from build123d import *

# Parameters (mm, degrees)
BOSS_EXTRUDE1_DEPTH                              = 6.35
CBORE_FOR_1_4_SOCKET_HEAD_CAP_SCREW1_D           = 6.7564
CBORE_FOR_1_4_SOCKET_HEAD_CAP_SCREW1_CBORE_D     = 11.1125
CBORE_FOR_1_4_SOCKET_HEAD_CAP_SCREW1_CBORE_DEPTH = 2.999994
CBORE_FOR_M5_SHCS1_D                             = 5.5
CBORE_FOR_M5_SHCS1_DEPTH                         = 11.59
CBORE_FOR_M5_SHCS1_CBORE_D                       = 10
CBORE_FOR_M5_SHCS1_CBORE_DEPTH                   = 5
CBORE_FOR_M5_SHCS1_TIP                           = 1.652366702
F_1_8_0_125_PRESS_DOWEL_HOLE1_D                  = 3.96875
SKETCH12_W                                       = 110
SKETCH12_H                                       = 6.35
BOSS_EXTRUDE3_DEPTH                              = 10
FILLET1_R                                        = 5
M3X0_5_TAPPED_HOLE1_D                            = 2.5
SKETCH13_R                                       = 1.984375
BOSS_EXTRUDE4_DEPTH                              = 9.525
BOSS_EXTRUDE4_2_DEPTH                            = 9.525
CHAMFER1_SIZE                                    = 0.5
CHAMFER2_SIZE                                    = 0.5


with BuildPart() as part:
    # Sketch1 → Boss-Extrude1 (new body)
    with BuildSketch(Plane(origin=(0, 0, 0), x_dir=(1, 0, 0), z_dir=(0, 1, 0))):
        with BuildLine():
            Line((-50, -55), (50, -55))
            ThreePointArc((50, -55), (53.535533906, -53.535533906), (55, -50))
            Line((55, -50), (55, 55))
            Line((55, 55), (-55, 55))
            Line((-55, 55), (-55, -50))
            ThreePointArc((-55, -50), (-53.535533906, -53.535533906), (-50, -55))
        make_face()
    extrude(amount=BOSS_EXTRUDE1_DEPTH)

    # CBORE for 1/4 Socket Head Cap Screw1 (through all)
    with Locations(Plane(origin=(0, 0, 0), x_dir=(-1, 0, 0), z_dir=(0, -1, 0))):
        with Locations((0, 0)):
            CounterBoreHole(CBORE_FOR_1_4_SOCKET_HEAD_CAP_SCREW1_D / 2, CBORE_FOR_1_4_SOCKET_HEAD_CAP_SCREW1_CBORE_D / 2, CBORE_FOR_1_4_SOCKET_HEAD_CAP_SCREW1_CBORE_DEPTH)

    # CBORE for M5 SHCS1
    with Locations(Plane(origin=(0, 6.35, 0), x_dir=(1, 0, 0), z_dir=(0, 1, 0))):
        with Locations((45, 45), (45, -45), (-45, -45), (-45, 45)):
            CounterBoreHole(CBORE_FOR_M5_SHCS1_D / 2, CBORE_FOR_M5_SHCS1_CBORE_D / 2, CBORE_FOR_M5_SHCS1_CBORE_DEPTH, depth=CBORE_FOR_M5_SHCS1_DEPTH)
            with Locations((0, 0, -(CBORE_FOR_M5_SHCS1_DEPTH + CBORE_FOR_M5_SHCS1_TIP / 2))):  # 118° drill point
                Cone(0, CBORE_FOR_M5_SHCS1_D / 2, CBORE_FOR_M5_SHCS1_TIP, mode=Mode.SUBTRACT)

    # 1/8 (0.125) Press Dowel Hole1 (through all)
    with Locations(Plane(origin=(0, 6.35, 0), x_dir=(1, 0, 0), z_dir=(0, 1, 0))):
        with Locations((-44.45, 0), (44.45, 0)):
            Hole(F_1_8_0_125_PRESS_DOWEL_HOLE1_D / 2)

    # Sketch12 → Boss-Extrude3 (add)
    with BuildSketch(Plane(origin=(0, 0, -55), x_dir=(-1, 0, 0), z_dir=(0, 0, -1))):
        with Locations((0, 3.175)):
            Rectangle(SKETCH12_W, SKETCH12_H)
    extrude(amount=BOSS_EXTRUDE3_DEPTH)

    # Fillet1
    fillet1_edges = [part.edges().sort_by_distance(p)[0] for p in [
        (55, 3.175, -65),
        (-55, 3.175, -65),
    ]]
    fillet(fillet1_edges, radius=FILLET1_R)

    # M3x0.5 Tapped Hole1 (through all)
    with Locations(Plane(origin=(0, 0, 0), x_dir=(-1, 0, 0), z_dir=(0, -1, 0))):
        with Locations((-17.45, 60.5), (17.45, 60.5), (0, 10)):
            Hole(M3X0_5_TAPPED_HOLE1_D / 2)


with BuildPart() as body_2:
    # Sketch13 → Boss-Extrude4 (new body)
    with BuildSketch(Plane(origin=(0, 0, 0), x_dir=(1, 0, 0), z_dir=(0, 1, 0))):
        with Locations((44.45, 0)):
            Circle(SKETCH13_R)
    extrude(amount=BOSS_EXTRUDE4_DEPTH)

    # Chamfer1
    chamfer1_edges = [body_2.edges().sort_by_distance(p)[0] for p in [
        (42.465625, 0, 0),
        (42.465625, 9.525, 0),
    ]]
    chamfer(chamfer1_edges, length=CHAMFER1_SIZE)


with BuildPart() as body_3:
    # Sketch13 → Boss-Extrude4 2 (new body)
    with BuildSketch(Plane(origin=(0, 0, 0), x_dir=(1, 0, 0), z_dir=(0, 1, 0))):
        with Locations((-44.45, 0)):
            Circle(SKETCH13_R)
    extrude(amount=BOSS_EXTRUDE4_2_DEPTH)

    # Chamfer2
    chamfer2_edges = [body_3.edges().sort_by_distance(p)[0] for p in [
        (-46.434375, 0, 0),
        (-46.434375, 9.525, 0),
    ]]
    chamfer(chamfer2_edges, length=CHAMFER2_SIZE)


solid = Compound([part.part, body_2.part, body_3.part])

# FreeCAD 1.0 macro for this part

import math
import FreeCAD as App
import Part
import Sketcher
from FreeCAD import Vector


def edges_at(feature, points):
    """Names of the edges that pass closest to the given points."""
    edges = feature.Shape.Edges
    near = lambda p: min(range(len(edges)), key=lambda i: edges[i].distToShape(Part.Vertex(*p))[0])
    return sorted({f"Edge{near(p) + 1}" for p in points})

doc = App.newDocument("Part")
body = doc.addObject("PartDesign::Body", "Body")

sketch1 = body.newObject("Sketcher::SketchObject", "Sketch")
sketch1.AttachmentSupport = (doc.getObject("XZ_Plane"), [""])
sketch1.MapMode = "FlatFace"
sketch1.addGeometry(Part.LineSegment(Vector(-50, 55, 0), Vector(50, 55, 0)), False)
sketch1.addGeometry(Part.ArcOfCircle(Part.Circle(Vector(50, 50, 0), Vector(0, 0, 1), 5), math.radians(0), math.radians(90)), False)
sketch1.addGeometry(Part.LineSegment(Vector(55, 50, 0), Vector(55, -55, 0)), False)
sketch1.addGeometry(Part.LineSegment(Vector(55, -55, 0), Vector(-55, -55, 0)), False)
sketch1.addGeometry(Part.LineSegment(Vector(-55, -55, 0), Vector(-55, 50, 0)), False)
sketch1.addGeometry(Part.ArcOfCircle(Part.Circle(Vector(-50, 50, 0), Vector(0, 0, 1), 5), math.radians(90), math.radians(180)), False)
sketch1.addConstraint(Sketcher.Constraint("Tangent", 0, 2, 1, 2))
sketch1.addConstraint(Sketcher.Constraint("Tangent", 1, 1, 2, 1))
sketch1.addConstraint(Sketcher.Constraint("Coincident", 2, 2, 3, 1))
sketch1.addConstraint(Sketcher.Constraint("Coincident", 3, 2, 4, 1))
sketch1.addConstraint(Sketcher.Constraint("Tangent", 4, 2, 5, 2))
sketch1.addConstraint(Sketcher.Constraint("Tangent", 5, 1, 0, 1))
sketch1.addConstraint(Sketcher.Constraint("Horizontal", 0))
sketch1.addConstraint(Sketcher.Constraint("Vertical", 2))
sketch1.addConstraint(Sketcher.Constraint("Horizontal", 3))
sketch1.addConstraint(Sketcher.Constraint("Vertical", 4))
sketch1.addConstraint(Sketcher.Constraint("Equal", 1, 5))
sketch1.addConstraint(Sketcher.Constraint("Radius", 1, 5.0))
sketch1.addConstraint(Sketcher.Constraint("DistanceX", 0, 1, 0, 2, 100.0))
sketch1.addConstraint(Sketcher.Constraint("DistanceY", 2, 2, 2, 1, 105.0))
sketch1.addConstraint(Sketcher.Constraint("DistanceX", -1, 1, 1, 3, 50.0))
sketch1.addConstraint(Sketcher.Constraint("DistanceY", -1, 1, 1, 3, 50.0))
pad1 = body.newObject("PartDesign::Pad", "Pad")
pad1.Profile = sketch1
pad1.Length = 6.35
pad1.Reversed = True

sketch2 = body.newObject("Sketcher::SketchObject", "Sketch001")
sketch2.AttachmentSupport = (doc.getObject("XZ_Plane"), [""])
sketch2.MapMode = "FlatFace"
sketch2.addGeometry(Part.Circle(Vector(0, 0, 0), Vector(0, 0, 1), 3.4), False)
sketch2.addConstraint(Sketcher.Constraint("Coincident", 0, 3, -1, 1))
sketch2.addConstraint(Sketcher.Constraint("Diameter", 0, 6.7564))
doc.recompute()
hole = body.newObject("PartDesign::Hole", "Hole")
hole.Profile = sketch2
hole.ThreadType = "None"
hole.Diameter = 6.7564
hole.DepthType = "ThroughAll"
hole.HoleCutType = "Counterbore"
hole.HoleCutDiameter = 11.1125
hole.HoleCutDepth = 2.999994

sketch3 = body.newObject("Sketcher::SketchObject", "Sketch002")
sketch3.AttachmentSupport = (doc.getObject("XZ_Plane"), [""])
sketch3.MapMode = "FlatFace"
sketch3.AttachmentOffset = App.Placement(Vector(0, 0, -6.35), App.Rotation())
sketch3.addGeometry(Part.Circle(Vector(45, -45, 0), Vector(0, 0, 1), 2.8), False)
sketch3.addGeometry(Part.Circle(Vector(45, 45, 0), Vector(0, 0, 1), 2.8), False)
sketch3.addGeometry(Part.Circle(Vector(-45, 45, 0), Vector(0, 0, 1), 2.8), False)
sketch3.addGeometry(Part.Circle(Vector(-45, -45, 0), Vector(0, 0, 1), 2.8), False)
sketch3.addConstraint(Sketcher.Constraint("Equal", 0, 1))
sketch3.addConstraint(Sketcher.Constraint("Equal", 1, 2))
sketch3.addConstraint(Sketcher.Constraint("Equal", 2, 3))
sketch3.addConstraint(Sketcher.Constraint("Symmetric", 0, 3, 2, 3, -1, 1))
sketch3.addConstraint(Sketcher.Constraint("Symmetric", 1, 3, 3, 3, -1, 1))
sketch3.addConstraint(Sketcher.Constraint("Symmetric", 1, 3, 2, 3, -2))
sketch3.addConstraint(Sketcher.Constraint("Diameter", 0, 5.5))
sketch3.addConstraint(Sketcher.Constraint("DistanceX", -1, 1, 0, 3, 45.0))
sketch3.addConstraint(Sketcher.Constraint("DistanceY", 0, 3, -1, 1, 45.0))
doc.recompute()
hole2 = body.newObject("PartDesign::Hole", "Hole001")
hole2.Profile = sketch3
hole2.ThreadType = "None"
hole2.Diameter = 5.5
hole2.DepthType = "Dimension"
hole2.Depth = 11.59
hole2.DrillPoint = "Angled"
hole2.DrillPointAngle = 118
hole2.HoleCutType = "Counterbore"
hole2.HoleCutDiameter = 10
hole2.HoleCutDepth = 5
hole2.Reversed = True

sketch4 = body.newObject("Sketcher::SketchObject", "Sketch003")
sketch4.AttachmentSupport = (doc.getObject("XZ_Plane"), [""])
sketch4.MapMode = "FlatFace"
sketch4.AttachmentOffset = App.Placement(Vector(0, 0, -6.35), App.Rotation())
sketch4.addGeometry(Part.Circle(Vector(-44.5, 0, 0), Vector(0, 0, 1), 2), False)
sketch4.addGeometry(Part.Circle(Vector(44.5, 0, 0), Vector(0, 0, 1), 2), False)
sketch4.addConstraint(Sketcher.Constraint("Equal", 0, 1))
sketch4.addConstraint(Sketcher.Constraint("Symmetric", 0, 3, 1, 3, -1, 1))
sketch4.addConstraint(Sketcher.Constraint("PointOnObject", 0, 3, -1))
sketch4.addConstraint(Sketcher.Constraint("DistanceX", 0, 3, 1, 3, 88.9))
sketch4.addConstraint(Sketcher.Constraint("Diameter", 0, 3.96875))
doc.recompute()
hole3 = body.newObject("PartDesign::Hole", "Hole002")
hole3.Profile = sketch4
hole3.ThreadType = "None"
hole3.Diameter = 3.96875
hole3.DepthType = "ThroughAll"
hole3.Reversed = True

sketch5 = body.newObject("Sketcher::SketchObject", "Sketch004")
sketch5.AttachmentSupport = (doc.getObject("XY_Plane"), [""])
sketch5.MapMode = "FlatFace"
sketch5.AttachmentOffset = App.Placement(Vector(0, 0, -55), App.Rotation())
sketch5.addGeometry(Part.LineSegment(Vector(55, 6, 0), Vector(55, 0, 0)), False)
sketch5.addGeometry(Part.LineSegment(Vector(55, 0, 0), Vector(-55, 0, 0)), False)
sketch5.addGeometry(Part.LineSegment(Vector(-55, 0, 0), Vector(-55, 6, 0)), False)
sketch5.addGeometry(Part.LineSegment(Vector(-55, 6, 0), Vector(55, 6, 0)), False)
sketch5.addConstraint(Sketcher.Constraint("Coincident", 0, 2, 1, 1))
sketch5.addConstraint(Sketcher.Constraint("Coincident", 1, 2, 2, 1))
sketch5.addConstraint(Sketcher.Constraint("Coincident", 2, 2, 3, 1))
sketch5.addConstraint(Sketcher.Constraint("Coincident", 3, 2, 0, 1))
sketch5.addConstraint(Sketcher.Constraint("Vertical", 0))
sketch5.addConstraint(Sketcher.Constraint("Horizontal", 1))
sketch5.addConstraint(Sketcher.Constraint("Vertical", 2))
sketch5.addConstraint(Sketcher.Constraint("Horizontal", 3))
sketch5.addConstraint(Sketcher.Constraint("Symmetric", 0, 2, 1, 2, -1, 1))
sketch5.addConstraint(Sketcher.Constraint("DistanceX", 1, 2, 1, 1, 110.0))
sketch5.addConstraint(Sketcher.Constraint("DistanceY", 0, 2, 0, 1, 6.35))
pad2 = body.newObject("PartDesign::Pad", "Pad001")
pad2.Profile = sketch5
pad2.Length = 10
pad2.Reversed = True
doc.recompute()

fillet = body.newObject("PartDesign::Fillet", "Fillet")
fillet.Base = (pad2, edges_at(pad2, [(55, 3.175, -65), (-55, 3.175, -65)]))
fillet.Radius = 5

sketch6 = body.newObject("Sketcher::SketchObject", "Sketch005")
sketch6.AttachmentSupport = (doc.getObject("XZ_Plane"), [""])
sketch6.MapMode = "FlatFace"
sketch6.addGeometry(Part.Circle(Vector(17.4, -60.5, 0), Vector(0, 0, 1), 1.2), False)
sketch6.addGeometry(Part.Circle(Vector(-17.4, -60.5, 0), Vector(0, 0, 1), 1.2), False)
sketch6.addGeometry(Part.Circle(Vector(0, -10, 0), Vector(0, 0, 1), 1.2), False)
sketch6.addConstraint(Sketcher.Constraint("Equal", 0, 1))
sketch6.addConstraint(Sketcher.Constraint("Equal", 1, 2))
sketch6.addConstraint(Sketcher.Constraint("Symmetric", 0, 3, 1, 3, -2))
sketch6.addConstraint(Sketcher.Constraint("PointOnObject", 2, 3, -2))
sketch6.addConstraint(Sketcher.Constraint("Diameter", 0, 2.5))
sketch6.addConstraint(Sketcher.Constraint("DistanceY", 2, 3, -1, 1, 10.0))
sketch6.addConstraint(Sketcher.Constraint("DistanceY", 0, 3, -1, 1, 60.5))
sketch6.addConstraint(Sketcher.Constraint("DistanceX", 1, 3, 0, 3, 34.9))
doc.recompute()
hole4 = body.newObject("PartDesign::Hole", "Hole003")
hole4.Profile = sketch6
hole4.ThreadType = "None"
hole4.Diameter = 2.5
hole4.DepthType = "ThroughAll"
body2 = doc.addObject("PartDesign::Body", "Body001")

sketch7 = body2.newObject("Sketcher::SketchObject", "Sketch006")
sketch7.AttachmentSupport = (doc.getObject("XZ_Plane001"), [""])
sketch7.MapMode = "FlatFace"
sketch7.addGeometry(Part.Circle(Vector(44.5, 0, 0), Vector(0, 0, 1), 2), False)
sketch7.addConstraint(Sketcher.Constraint("PointOnObject", 0, 3, -1))
sketch7.addConstraint(Sketcher.Constraint("Diameter", 0, 3.96875))
sketch7.addConstraint(Sketcher.Constraint("DistanceX", -1, 1, 0, 3, 44.45))
pad3 = body2.newObject("PartDesign::Pad", "Pad002")
pad3.Profile = sketch7
pad3.Length = 9.525
pad3.Reversed = True
doc.recompute()

chamfer = body2.newObject("PartDesign::Chamfer", "Chamfer")
chamfer.Base = (pad3, edges_at(pad3, [(42.466, 0, 0), (42.466, 9.525, 0)]))
chamfer.Size = 0.5
body3 = doc.addObject("PartDesign::Body", "Body002")

sketch8 = body3.newObject("Sketcher::SketchObject", "Sketch007")
sketch8.AttachmentSupport = (doc.getObject("XZ_Plane002"), [""])
sketch8.MapMode = "FlatFace"
sketch8.addGeometry(Part.Circle(Vector(-44.5, 0, 0), Vector(0, 0, 1), 2), False)
sketch8.addConstraint(Sketcher.Constraint("PointOnObject", 0, 3, -1))
sketch8.addConstraint(Sketcher.Constraint("Diameter", 0, 3.96875))
sketch8.addConstraint(Sketcher.Constraint("DistanceX", 0, 3, -1, 1, 44.45))
pad4 = body3.newObject("PartDesign::Pad", "Pad003")
pad4.Profile = sketch8
pad4.Length = 9.525
pad4.Reversed = True
doc.recompute()

chamfer2 = body3.newObject("PartDesign::Chamfer", "Chamfer001")
chamfer2.Base = (pad4, edges_at(pad4, [(-46.434, 0, 0), (-46.434, 9.525, 0)]))
chamfer2.Size = 0.5

doc.recompute()
